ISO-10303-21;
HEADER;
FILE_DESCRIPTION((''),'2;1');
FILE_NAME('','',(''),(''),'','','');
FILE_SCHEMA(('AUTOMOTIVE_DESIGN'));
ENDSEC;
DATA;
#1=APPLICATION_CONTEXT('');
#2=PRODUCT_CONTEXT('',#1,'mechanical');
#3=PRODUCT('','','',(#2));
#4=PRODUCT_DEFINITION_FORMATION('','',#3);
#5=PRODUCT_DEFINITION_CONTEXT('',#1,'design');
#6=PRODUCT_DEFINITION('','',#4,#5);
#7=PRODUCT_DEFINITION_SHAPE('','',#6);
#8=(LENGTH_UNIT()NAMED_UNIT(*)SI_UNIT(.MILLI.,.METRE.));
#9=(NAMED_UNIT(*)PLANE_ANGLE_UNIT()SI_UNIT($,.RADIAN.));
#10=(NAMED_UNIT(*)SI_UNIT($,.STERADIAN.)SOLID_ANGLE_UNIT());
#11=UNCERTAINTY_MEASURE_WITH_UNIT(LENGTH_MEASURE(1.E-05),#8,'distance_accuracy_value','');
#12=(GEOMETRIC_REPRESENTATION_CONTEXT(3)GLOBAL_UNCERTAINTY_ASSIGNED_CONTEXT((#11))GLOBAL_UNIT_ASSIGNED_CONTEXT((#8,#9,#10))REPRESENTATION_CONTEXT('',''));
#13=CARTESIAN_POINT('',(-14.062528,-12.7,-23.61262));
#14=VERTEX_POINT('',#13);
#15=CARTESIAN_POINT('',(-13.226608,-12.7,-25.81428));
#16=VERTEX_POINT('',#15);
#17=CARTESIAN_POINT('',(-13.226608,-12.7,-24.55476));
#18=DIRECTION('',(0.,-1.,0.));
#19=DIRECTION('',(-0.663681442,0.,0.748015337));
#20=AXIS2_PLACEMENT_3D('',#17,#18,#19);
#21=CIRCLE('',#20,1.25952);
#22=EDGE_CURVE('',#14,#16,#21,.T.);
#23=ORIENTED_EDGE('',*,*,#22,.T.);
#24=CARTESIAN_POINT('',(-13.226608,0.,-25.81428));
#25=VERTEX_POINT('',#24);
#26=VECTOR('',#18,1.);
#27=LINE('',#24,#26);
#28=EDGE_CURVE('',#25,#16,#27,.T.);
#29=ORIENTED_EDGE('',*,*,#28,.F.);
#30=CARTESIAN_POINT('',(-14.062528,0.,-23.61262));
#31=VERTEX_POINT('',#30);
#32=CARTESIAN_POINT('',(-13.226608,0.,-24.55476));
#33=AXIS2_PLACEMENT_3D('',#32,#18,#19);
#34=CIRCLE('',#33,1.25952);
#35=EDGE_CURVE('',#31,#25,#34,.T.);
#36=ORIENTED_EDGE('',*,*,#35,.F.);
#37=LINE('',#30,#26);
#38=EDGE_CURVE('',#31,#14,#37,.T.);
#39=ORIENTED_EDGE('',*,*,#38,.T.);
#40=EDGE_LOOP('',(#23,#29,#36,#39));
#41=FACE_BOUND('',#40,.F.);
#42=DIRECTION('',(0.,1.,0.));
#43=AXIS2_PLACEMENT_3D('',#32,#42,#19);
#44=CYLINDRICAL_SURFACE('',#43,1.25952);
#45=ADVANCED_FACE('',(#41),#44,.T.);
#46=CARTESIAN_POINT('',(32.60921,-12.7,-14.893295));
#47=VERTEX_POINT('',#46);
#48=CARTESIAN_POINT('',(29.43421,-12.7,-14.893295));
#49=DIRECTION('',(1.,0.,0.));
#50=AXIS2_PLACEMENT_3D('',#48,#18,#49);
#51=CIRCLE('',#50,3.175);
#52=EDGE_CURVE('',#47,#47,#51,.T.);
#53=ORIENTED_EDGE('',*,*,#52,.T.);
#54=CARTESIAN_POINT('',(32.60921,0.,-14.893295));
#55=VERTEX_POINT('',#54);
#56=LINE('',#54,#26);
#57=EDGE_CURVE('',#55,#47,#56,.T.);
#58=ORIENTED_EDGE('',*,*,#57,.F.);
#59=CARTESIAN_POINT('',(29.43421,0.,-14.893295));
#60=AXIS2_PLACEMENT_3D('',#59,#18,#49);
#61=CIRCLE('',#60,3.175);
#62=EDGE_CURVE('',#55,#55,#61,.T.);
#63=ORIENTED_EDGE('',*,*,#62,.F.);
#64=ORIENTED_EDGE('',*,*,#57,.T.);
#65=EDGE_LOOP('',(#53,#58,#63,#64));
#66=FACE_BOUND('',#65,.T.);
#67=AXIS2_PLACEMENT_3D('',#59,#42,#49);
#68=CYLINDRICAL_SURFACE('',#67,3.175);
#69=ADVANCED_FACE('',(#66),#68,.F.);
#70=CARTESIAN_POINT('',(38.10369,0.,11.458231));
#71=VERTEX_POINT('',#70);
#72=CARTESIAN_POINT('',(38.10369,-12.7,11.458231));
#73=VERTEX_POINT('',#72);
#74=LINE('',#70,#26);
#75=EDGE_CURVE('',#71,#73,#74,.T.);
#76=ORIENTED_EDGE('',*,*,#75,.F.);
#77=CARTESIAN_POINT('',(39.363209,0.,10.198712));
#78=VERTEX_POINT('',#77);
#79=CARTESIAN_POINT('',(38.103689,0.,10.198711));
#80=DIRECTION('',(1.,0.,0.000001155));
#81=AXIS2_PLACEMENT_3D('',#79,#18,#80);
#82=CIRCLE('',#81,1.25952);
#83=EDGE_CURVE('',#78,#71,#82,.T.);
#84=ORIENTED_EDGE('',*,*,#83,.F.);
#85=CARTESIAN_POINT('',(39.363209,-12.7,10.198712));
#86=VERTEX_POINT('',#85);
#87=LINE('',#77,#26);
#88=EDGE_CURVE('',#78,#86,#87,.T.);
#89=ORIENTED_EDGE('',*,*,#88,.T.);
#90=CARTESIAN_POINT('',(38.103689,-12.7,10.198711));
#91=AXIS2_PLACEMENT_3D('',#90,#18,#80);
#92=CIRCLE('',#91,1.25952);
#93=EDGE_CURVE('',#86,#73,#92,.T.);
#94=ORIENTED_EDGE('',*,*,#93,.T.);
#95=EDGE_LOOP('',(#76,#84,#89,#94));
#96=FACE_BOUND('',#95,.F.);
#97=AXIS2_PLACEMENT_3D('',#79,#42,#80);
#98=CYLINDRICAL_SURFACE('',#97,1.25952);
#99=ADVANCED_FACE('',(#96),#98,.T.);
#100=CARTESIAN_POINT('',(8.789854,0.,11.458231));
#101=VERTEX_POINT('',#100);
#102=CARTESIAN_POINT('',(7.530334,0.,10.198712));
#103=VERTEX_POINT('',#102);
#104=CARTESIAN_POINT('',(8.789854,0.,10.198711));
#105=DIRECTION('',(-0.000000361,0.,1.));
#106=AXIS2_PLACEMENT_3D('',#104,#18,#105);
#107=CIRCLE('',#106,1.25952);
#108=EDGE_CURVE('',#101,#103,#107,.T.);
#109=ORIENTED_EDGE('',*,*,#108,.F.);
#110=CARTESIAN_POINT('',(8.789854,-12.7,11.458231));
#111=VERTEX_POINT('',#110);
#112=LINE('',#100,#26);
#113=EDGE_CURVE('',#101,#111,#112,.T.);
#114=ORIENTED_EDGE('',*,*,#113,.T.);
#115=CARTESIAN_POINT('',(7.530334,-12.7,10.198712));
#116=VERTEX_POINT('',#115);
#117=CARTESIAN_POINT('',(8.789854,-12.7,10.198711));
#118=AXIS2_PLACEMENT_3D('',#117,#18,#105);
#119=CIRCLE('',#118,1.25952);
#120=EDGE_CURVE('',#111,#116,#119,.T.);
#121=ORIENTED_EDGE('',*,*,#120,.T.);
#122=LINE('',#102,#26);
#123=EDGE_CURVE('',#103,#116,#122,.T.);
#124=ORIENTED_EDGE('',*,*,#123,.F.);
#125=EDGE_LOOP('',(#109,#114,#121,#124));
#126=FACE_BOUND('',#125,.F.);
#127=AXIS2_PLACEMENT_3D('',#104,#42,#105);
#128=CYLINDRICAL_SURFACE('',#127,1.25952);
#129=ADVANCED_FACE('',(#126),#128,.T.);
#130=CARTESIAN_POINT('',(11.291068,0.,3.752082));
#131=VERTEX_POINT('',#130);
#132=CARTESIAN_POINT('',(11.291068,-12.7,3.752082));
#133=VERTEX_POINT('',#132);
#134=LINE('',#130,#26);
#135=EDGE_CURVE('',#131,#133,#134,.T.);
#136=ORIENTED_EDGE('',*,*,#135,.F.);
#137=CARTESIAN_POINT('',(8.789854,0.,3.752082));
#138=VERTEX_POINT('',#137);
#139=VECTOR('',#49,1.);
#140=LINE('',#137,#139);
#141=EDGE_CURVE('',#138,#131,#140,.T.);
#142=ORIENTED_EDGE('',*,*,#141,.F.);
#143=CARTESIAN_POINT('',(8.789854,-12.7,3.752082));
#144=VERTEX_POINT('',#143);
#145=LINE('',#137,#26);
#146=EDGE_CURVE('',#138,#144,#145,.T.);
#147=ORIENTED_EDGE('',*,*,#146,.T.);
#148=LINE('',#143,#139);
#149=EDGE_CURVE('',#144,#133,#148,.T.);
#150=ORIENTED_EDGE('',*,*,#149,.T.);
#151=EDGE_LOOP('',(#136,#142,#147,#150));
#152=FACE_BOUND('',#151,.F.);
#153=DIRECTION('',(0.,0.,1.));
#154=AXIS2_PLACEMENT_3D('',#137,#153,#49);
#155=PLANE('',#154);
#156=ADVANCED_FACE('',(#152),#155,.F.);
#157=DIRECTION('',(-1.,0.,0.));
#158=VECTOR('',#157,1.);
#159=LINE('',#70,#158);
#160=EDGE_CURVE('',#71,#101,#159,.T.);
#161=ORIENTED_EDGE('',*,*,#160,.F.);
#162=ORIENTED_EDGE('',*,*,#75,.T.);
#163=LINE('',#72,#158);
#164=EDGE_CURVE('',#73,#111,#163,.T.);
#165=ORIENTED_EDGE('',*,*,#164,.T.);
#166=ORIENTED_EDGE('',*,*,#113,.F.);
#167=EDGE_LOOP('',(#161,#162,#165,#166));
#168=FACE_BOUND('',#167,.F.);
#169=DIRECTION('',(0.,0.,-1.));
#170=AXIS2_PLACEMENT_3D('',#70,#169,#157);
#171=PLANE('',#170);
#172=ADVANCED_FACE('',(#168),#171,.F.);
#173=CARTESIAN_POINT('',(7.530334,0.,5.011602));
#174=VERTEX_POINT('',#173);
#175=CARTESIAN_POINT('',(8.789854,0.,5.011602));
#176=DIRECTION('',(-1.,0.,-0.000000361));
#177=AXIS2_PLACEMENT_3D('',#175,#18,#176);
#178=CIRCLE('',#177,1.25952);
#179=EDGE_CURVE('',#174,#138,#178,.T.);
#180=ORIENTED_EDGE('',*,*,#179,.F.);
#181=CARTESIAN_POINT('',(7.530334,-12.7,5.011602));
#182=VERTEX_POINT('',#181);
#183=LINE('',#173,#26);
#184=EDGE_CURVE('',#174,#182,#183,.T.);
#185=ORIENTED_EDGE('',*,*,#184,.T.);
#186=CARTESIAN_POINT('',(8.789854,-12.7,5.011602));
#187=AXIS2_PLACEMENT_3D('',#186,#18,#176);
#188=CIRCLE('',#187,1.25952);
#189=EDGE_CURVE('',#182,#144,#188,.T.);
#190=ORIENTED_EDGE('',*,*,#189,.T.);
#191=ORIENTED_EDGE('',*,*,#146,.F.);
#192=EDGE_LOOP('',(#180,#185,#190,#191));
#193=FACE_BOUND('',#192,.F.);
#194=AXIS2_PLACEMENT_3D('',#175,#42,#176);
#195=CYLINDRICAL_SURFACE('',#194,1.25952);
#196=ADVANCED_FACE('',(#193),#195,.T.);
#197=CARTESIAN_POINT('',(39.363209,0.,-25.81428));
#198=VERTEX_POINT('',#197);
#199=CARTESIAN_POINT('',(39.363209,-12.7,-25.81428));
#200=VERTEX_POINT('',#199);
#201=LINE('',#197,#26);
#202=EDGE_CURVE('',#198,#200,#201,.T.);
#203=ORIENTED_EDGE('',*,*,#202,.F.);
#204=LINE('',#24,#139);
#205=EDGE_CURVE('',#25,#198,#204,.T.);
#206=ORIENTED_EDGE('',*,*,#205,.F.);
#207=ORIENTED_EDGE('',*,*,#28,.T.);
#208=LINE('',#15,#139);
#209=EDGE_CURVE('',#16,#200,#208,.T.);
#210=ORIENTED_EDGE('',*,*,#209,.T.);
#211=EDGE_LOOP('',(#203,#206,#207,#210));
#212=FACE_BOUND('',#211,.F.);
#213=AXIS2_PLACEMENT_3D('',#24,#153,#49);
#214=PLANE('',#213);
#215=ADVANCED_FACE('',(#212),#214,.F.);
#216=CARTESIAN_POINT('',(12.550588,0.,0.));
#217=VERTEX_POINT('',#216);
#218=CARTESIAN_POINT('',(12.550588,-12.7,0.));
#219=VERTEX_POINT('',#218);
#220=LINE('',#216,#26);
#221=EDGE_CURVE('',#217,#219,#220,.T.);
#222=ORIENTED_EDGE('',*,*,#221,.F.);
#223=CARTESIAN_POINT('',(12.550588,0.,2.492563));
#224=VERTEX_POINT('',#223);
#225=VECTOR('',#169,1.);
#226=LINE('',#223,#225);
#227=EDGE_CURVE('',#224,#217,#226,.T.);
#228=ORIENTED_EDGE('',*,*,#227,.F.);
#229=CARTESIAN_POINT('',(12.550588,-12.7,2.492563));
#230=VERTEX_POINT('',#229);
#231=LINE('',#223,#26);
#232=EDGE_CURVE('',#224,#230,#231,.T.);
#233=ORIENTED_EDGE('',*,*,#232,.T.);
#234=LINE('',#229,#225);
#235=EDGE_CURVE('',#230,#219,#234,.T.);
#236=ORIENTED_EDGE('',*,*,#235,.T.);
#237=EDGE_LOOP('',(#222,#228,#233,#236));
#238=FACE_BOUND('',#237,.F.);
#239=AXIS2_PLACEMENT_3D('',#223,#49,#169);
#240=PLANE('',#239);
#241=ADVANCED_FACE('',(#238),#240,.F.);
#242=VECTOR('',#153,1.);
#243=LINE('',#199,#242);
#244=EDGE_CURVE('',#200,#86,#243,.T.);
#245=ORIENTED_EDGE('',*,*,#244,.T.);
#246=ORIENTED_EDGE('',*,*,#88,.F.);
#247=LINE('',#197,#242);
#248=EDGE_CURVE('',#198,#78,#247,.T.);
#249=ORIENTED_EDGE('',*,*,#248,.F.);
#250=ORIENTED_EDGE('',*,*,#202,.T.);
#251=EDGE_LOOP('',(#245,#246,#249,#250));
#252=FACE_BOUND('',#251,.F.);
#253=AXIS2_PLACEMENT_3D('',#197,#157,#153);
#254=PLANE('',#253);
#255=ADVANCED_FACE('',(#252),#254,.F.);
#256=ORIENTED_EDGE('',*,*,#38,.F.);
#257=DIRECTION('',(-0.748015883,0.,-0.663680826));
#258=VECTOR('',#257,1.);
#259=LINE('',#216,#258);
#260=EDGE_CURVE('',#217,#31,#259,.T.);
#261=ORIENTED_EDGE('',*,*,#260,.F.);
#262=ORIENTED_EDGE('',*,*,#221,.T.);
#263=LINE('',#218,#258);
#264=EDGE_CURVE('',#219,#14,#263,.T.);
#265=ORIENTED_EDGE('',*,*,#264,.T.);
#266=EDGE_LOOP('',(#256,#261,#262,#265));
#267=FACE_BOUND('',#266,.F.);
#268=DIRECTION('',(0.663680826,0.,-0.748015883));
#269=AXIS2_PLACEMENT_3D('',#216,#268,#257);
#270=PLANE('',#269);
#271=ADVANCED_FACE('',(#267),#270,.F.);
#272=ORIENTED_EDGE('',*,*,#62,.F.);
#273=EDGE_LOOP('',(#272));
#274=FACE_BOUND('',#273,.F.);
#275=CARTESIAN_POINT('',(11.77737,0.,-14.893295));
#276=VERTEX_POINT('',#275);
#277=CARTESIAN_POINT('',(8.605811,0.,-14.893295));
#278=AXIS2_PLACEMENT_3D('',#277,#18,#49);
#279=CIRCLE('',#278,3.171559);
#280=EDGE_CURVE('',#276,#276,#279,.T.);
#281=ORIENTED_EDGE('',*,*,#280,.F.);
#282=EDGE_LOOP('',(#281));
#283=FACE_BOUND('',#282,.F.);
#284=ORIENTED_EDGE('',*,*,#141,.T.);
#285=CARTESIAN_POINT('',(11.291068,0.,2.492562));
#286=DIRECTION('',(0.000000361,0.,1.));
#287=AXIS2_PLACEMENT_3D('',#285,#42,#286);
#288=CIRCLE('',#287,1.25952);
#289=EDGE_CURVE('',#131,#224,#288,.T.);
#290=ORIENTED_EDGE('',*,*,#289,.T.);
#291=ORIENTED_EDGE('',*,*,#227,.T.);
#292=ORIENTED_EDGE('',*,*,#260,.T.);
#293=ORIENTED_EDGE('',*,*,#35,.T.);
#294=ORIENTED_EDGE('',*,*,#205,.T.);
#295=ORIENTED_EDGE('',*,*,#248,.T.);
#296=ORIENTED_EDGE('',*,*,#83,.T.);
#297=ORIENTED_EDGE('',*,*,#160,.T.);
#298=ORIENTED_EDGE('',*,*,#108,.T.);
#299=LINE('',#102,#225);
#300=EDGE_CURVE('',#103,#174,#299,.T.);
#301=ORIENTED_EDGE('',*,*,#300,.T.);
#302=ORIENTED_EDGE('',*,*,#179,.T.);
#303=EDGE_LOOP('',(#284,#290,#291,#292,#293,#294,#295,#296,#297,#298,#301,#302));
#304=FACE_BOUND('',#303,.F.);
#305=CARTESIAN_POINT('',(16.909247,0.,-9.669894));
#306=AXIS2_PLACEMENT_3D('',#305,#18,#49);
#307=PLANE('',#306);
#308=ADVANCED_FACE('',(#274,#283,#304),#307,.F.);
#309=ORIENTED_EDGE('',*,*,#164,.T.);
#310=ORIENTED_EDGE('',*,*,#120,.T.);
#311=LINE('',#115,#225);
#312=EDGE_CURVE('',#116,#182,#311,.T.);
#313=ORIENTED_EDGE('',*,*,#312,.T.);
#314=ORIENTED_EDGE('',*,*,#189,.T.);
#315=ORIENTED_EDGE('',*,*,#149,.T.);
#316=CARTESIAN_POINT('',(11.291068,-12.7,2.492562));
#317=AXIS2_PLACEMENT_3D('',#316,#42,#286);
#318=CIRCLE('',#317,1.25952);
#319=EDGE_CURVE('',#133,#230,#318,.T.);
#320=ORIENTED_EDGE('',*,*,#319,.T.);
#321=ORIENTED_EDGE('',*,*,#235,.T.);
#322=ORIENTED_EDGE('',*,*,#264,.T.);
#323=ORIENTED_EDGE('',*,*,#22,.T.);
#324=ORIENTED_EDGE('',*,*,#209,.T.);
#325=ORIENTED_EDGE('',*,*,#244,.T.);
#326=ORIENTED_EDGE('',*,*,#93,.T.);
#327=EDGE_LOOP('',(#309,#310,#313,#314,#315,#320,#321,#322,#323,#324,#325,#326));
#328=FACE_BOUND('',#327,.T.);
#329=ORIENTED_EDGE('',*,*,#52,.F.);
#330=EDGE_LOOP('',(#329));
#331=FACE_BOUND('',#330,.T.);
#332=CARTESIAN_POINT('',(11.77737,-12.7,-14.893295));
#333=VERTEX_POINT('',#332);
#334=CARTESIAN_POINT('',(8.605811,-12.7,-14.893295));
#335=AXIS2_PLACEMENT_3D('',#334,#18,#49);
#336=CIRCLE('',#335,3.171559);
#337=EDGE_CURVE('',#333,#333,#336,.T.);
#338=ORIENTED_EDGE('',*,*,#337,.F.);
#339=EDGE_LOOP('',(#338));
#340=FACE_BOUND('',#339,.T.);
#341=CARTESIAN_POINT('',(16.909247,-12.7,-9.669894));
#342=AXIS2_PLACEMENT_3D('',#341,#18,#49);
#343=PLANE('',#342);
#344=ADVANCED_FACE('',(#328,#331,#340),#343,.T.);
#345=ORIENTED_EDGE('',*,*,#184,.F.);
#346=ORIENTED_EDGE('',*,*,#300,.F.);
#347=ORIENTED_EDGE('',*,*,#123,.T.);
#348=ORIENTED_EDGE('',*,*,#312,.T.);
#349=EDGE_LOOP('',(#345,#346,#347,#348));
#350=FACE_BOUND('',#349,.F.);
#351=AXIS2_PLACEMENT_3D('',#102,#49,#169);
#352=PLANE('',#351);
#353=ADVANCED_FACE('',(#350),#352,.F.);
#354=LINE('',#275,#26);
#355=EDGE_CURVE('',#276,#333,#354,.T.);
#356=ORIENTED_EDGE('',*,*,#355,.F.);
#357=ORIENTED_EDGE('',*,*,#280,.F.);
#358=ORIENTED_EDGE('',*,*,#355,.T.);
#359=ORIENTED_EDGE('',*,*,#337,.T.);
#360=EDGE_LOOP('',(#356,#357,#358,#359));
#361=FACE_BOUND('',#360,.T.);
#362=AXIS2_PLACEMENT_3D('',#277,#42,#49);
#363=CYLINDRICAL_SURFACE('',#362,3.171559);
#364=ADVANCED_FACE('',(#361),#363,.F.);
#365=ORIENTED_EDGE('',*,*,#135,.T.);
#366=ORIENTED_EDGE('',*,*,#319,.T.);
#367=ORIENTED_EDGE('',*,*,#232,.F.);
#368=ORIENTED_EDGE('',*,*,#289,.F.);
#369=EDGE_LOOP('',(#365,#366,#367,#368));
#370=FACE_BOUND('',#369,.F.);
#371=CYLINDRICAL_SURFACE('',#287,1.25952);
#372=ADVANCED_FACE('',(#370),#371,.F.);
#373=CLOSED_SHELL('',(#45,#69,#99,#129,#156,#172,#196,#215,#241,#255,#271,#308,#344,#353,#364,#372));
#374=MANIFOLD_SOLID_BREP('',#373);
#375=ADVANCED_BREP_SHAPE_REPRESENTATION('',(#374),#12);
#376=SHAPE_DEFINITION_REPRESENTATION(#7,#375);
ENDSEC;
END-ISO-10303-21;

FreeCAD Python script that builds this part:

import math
import FreeCAD as App
import Part
import Sketcher
Q = App.Units.Quantity

doc = App.newDocument("Part")
body = doc.addObject("PartDesign::Body", "Body")

sketch1 = doc.addObject("Sketcher::SketchObject", "Sketch")
body.addObject(sketch1)
sketch1.AttachmentSupport = (doc.XZ_Plane, [""])
sketch1.MapMode = "FlatFace"
sketch1.addGeometry(Part.ArcOfCircle(Part.Circle(App.Vector(-13.226608, -24.55476, 0), App.Vector(0, 0, 1), 1.25952), math.radians(131.581249), math.radians(270.000003)), False)
sketch1.addGeometry(Part.LineSegment(App.Vector(-13.226608, -25.81428, 0), App.Vector(39.363209, -25.81428, 0)), False)
sketch1.addGeometry(Part.LineSegment(App.Vector(39.363209, -25.81428, 0), App.Vector(39.363209, 10.198712, 0)), False)
sketch1.addGeometry(Part.ArcOfCircle(Part.Circle(App.Vector(38.103689, 10.198711, 0), App.Vector(0, 0, 1), 1.25952), math.radians(0.000066), math.radians(89.999934)), False)
sketch1.addGeometry(Part.LineSegment(App.Vector(38.10369, 11.458231, 0), App.Vector(8.789854, 11.458231, 0)), False)
sketch1.addGeometry(Part.ArcOfCircle(Part.Circle(App.Vector(8.789854, 10.198711, 0), App.Vector(0, 0, 1), 1.25952), math.radians(90.000021), math.radians(179.999934)), False)
sketch1.addGeometry(Part.LineSegment(App.Vector(7.530334, 10.198712, 0), App.Vector(7.530334, 5.011602, 0)), False)
sketch1.addGeometry(Part.ArcOfCircle(Part.Circle(App.Vector(8.789854, 5.011602, 0), App.Vector(0, 0, 1), 1.25952), math.radians(-179.999979), math.radians(-90.000021)), False)
sketch1.addGeometry(Part.LineSegment(App.Vector(8.789854, 3.752082, 0), App.Vector(11.291068, 3.752082, 0)), False)
sketch1.addGeometry(Part.ArcOfCircle(Part.Circle(App.Vector(11.291068, 2.492562, 0), App.Vector(0, 0, 1), 1.25952), math.radians(0.000066), math.radians(89.999979)), False)
sketch1.addGeometry(Part.LineSegment(App.Vector(12.550588, 2.492563, 0), App.Vector(12.550588, 0, 0)), False)
sketch1.addGeometry(Part.LineSegment(App.Vector(12.550588, 0, 0), App.Vector(-14.062528, -23.61262, 0)), False)
sketch1.addGeometry(Part.Circle(App.Vector(8.605811, -14.893295, 0), App.Vector(0, 0, 1), 3.171559), False)
sketch1.addGeometry(Part.Circle(App.Vector(29.43421, -14.893295, 0), App.Vector(0, 0, 1), 3.175), False)
sketch1.addConstraint(Sketcher.Constraint("Coincident", 0, 2, 1, 1))
sketch1.addConstraint(Sketcher.Constraint("Coincident", 1, 2, 2, 1))
sketch1.addConstraint(Sketcher.Constraint("Coincident", 2, 2, 3, 1))
sketch1.addConstraint(Sketcher.Constraint("Coincident", 3, 2, 4, 1))
sketch1.addConstraint(Sketcher.Constraint("Coincident", 4, 2, 5, 1))
sketch1.addConstraint(Sketcher.Constraint("Coincident", 5, 2, 6, 1))
sketch1.addConstraint(Sketcher.Constraint("Coincident", 6, 2, 7, 1))
sketch1.addConstraint(Sketcher.Constraint("Coincident", 7, 2, 8, 1))
sketch1.addConstraint(Sketcher.Constraint("Coincident", 8, 2, 9, 2))
sketch1.addConstraint(Sketcher.Constraint("Coincident", 9, 1, 10, 1))
sketch1.addConstraint(Sketcher.Constraint("Coincident", 10, 2, 11, 1))
sketch1.addConstraint(Sketcher.Constraint("Coincident", 11, 2, 0, 1))
sketch1.addConstraint(Sketcher.Constraint("Horizontal", 1))
sketch1.addConstraint(Sketcher.Constraint("Vertical", 2))
sketch1.addConstraint(Sketcher.Constraint("Horizontal", 4))
sketch1.addConstraint(Sketcher.Constraint("Vertical", 6))
sketch1.addConstraint(Sketcher.Constraint("Horizontal", 8))
sketch1.addConstraint(Sketcher.Constraint("Vertical", 10))
sketch1.addConstraint(Sketcher.Constraint("PointOnObject", 10, 2, -1))
sketch1.addConstraint(Sketcher.Constraint("Diameter", 13, Q("0.25 in")))
sketch1.addConstraint(Sketcher.Constraint("Radius", 0, 1.25952))
sketch1.addConstraint(Sketcher.Constraint("Radius", 3, 1.25952))
sketch1.addConstraint(Sketcher.Constraint("Radius", 5, 1.25952))
sketch1.addConstraint(Sketcher.Constraint("Radius", 7, 1.25952))
sketch1.addConstraint(Sketcher.Constraint("Radius", 9, 1.25952))
sketch1.addConstraint(Sketcher.Constraint("Diameter", 12, 6.343118))
sketch1.addConstraint(Sketcher.Constraint("DistanceX", 11, 2, 7, 2, Q("0.8997001 in")))
sketch1.addConstraint(Sketcher.Constraint("DistanceY", 2, 1, 2, 2, 36.012992))
sketch1.addConstraint(Sketcher.Constraint("DistanceY", 6, 2, 6, 1, 5.18711))
sketch1.addConstraint(Sketcher.Constraint("DistanceX", 12, 3, 13, 3, 20.828399))
sketch1.addConstraint(Sketcher.Constraint("DistanceX", 13, 3, 1, 2, 9.928999))
sketch1.addConstraint(Sketcher.Constraint("DistanceX", 1, 1, 1, 2, 52.589817))
sketch1.addConstraint(Sketcher.Constraint("DistanceX", 4, 2, 4, 1, 29.313836))
sketch1.addConstraint(Sketcher.Constraint("DistanceX", 8, 1, 8, 2, 2.501214))
sketch1.addConstraint(Sketcher.Constraint("DistanceY", 10, 2, 10, 1, 2.492563))
sketch1.addConstraint(Sketcher.Constraint("DistanceX", 0, 3, -1, 1, 13.226608))
sketch1.addConstraint(Sketcher.Constraint("DistanceY", 0, 3, -1, 1, 24.55476))
sketch1.addConstraint(Sketcher.Constraint("DistanceX", -1, 1, 3, 3, 38.103689))
sketch1.addConstraint(Sketcher.Constraint("DistanceY", -1, 1, 3, 3, 10.198711))
sketch1.addConstraint(Sketcher.Constraint("DistanceY", -1, 1, 9, 3, 2.492562))
sketch1.addConstraint(Sketcher.Constraint("DistanceX", -1, 1, 3, 2, 38.10369))
sketch1.addConstraint(Sketcher.Constraint("DistanceY", 11, 2, -1, 1, 23.61262))
sketch1.addConstraint(Sketcher.Constraint("DistanceX", 9, 3, 3, 3, 26.812621))
sketch1.addConstraint(Sketcher.Constraint("DistanceX", 5, 2, 4, 2, 1.25952))
sketch1.addConstraint(Sketcher.Constraint("DistanceY", 5, 2, 4, 2, 1.259519))
sketch1.addConstraint(Sketcher.Constraint("DistanceY", 12, 3, -1, 1, 14.893295))
sketch1.addConstraint(Sketcher.Constraint("DistanceY", 13, 3, -1, 1, 14.893295))
pad1 = doc.addObject("PartDesign::Pad", "Pad")
body.addObject(pad1)
pad1.Profile = sketch1
pad1.Length = Q("0.5 in")

doc.recompute()
